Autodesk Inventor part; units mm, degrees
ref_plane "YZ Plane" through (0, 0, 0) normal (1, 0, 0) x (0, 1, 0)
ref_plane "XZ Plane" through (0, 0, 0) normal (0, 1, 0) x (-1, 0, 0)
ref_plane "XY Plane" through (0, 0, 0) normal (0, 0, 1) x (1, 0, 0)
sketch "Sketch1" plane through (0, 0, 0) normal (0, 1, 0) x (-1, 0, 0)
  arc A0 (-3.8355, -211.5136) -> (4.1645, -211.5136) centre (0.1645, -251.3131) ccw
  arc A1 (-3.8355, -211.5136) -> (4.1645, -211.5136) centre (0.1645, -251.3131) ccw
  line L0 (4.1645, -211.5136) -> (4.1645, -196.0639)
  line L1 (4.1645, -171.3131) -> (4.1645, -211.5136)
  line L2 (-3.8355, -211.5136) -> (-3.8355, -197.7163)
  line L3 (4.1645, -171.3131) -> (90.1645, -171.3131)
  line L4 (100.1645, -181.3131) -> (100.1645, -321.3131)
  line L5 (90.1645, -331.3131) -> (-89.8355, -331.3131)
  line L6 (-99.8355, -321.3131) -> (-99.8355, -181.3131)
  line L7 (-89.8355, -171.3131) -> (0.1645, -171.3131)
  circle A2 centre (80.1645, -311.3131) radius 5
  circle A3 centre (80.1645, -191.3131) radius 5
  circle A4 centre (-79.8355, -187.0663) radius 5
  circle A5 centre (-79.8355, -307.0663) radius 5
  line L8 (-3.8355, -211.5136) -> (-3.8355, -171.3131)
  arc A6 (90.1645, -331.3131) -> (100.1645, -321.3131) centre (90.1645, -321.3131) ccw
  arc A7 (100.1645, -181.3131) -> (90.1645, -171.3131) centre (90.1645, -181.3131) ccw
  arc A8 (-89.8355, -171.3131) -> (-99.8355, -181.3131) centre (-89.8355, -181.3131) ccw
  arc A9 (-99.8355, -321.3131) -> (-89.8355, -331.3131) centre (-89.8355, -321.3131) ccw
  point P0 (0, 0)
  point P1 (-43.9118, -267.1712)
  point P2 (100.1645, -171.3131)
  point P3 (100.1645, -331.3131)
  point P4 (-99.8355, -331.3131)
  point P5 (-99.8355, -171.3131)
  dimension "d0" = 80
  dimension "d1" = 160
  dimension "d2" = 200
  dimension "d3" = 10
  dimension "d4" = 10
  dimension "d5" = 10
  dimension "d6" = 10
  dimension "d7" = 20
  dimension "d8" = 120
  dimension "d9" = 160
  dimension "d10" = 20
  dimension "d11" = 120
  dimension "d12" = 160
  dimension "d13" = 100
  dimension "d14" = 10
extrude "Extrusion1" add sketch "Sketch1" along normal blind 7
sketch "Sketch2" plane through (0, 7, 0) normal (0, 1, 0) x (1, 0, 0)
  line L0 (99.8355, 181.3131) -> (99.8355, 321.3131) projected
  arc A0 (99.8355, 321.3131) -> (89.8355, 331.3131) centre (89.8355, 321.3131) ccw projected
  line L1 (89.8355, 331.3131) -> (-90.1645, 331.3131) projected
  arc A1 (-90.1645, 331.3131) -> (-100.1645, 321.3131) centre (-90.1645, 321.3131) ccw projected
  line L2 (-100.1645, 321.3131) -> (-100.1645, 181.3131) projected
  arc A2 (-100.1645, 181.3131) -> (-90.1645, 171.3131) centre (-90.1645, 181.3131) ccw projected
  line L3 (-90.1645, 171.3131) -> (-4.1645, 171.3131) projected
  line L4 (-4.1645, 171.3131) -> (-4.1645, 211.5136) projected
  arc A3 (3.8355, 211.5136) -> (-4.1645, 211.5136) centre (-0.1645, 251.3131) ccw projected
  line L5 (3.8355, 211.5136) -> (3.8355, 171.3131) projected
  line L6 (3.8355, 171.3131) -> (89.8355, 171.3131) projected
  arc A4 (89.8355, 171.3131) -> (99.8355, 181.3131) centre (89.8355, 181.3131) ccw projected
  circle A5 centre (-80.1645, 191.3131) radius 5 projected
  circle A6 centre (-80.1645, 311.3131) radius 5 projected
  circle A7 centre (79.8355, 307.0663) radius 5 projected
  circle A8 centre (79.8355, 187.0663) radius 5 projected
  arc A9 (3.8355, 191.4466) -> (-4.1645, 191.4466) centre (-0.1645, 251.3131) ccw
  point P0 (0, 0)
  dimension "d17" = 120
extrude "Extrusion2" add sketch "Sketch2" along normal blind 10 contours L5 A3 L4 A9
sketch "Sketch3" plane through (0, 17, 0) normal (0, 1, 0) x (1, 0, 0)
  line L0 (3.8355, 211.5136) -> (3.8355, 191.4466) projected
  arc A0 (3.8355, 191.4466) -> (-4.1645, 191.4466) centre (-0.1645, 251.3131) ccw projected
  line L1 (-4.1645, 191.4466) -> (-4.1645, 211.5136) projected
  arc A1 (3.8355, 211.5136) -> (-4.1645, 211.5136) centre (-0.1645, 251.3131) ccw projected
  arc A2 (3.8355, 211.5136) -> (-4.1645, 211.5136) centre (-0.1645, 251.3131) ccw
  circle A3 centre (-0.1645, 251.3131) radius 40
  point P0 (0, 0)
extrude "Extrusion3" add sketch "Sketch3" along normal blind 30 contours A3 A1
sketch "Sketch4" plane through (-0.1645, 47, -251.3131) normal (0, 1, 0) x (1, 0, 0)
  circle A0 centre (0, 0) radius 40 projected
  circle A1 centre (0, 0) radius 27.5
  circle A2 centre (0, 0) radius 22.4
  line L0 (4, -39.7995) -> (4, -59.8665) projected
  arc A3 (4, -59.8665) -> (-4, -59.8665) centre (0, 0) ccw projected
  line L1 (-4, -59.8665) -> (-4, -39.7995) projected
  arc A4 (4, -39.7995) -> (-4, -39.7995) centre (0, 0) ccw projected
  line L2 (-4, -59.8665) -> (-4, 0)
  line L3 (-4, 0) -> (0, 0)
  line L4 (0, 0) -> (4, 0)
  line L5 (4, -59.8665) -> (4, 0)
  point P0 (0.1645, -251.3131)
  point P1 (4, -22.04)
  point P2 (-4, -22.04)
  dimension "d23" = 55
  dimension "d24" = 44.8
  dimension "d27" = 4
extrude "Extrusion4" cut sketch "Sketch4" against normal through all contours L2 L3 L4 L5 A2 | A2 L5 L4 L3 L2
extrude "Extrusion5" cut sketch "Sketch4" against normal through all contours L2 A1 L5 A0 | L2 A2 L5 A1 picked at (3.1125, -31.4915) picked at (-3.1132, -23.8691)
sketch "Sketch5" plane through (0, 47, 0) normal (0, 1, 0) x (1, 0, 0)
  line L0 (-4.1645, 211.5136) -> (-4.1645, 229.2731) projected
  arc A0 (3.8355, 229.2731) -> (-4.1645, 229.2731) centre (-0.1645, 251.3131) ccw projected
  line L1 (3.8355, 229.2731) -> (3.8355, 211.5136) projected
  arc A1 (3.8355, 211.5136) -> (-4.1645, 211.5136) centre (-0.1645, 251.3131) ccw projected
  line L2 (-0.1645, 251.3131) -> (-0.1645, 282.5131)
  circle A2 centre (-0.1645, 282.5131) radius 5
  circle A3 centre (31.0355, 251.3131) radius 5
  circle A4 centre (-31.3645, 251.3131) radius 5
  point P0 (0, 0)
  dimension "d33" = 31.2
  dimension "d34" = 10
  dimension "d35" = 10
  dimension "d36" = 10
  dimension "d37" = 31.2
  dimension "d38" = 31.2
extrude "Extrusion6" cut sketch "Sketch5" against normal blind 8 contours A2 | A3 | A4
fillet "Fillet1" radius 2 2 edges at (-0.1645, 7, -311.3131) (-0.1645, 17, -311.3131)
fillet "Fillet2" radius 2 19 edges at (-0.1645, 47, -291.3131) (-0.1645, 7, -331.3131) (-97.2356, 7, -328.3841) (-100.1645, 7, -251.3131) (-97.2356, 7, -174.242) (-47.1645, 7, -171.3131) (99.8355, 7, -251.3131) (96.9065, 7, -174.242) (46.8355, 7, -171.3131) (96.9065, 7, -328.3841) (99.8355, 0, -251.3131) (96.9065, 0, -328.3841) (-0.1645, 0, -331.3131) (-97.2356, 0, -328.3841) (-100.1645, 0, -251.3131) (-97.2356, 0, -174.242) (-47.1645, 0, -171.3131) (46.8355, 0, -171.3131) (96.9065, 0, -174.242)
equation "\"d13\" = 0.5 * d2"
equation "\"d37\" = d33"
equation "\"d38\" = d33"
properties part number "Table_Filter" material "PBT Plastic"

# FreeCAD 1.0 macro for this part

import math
import FreeCAD as App
import Part
import Sketcher
from FreeCAD import Vector
Q = App.Units.Quantity


def edges_at(feature, points):
    """Names of the edges that pass closest to the given points."""
    edges = feature.Shape.Edges
    near = lambda p: min(range(len(edges)), key=lambda i: edges[i].distToShape(Part.Vertex(*p))[0])
    return sorted({f"Edge{near(p) + 1}" for p in points})

doc = App.newDocument("Part")
body = doc.addObject("PartDesign::Body", "Body")
body.AllowCompound = True

sketch1 = doc.addObject("Sketcher::SketchObject", "Sketch")
body.addObject(sketch1)
sketch1.AttachmentSupport = (doc.XZ_Plane, [""])
sketch1.MapMode = "FlatFace"
sketch1.addGeometry([
    Part.ArcOfCircle(Part.Circle(Vector(0, -251, 0), Vector(0, 0, 1), 40), math.radians(96), math.radians(444)),
    Part.LineSegment(Vector(4, -212, 0), Vector(4, -171, 0)),
    Part.LineSegment(Vector(4, -171, 0), Vector(90, -171, 0)),
    Part.ArcOfCircle(Part.Circle(Vector(90, -181, 0), Vector(0, 0, 1), 10), math.radians(0), math.radians(90)),
    Part.LineSegment(Vector(100, -181, 0), Vector(100, -321, 0)),
    Part.ArcOfCircle(Part.Circle(Vector(90, -321, 0), Vector(0, 0, 1), 10), math.radians(-90), math.radians(0)),
    Part.LineSegment(Vector(90, -331, 0), Vector(-90, -331, 0)),
    Part.ArcOfCircle(Part.Circle(Vector(-90, -321, 0), Vector(0, 0, 1), 10), math.radians(180), math.radians(270)),
    Part.LineSegment(Vector(-100, -321, 0), Vector(-100, -181, 0)),
    Part.ArcOfCircle(Part.Circle(Vector(-90, -181, 0), Vector(0, 0, 1), 10), math.radians(90), math.radians(180)),
    Part.LineSegment(Vector(-90, -171, 0), Vector(-4, -171, 0)),
    Part.LineSegment(Vector(-4, -171, 0), Vector(-4, -212, 0)),
    Part.Circle(Vector(80, -307, 0), Vector(0, 0, 1), 5),
    Part.Circle(Vector(-80, -311, 0), Vector(0, 0, 1), 5),
    Part.Circle(Vector(80, -187, 0), Vector(0, 0, 1), 5),
    Part.Circle(Vector(-80, -191, 0), Vector(0, 0, 1), 5),
], False)
sketch1.addConstraint([
    Sketcher.Constraint("Coincident", 0, 2, 1, 1),
    Sketcher.Constraint("Coincident", 1, 2, 2, 1),
    Sketcher.Constraint("Tangent", 2, 2, 3, 2),
    Sketcher.Constraint("Tangent", 3, 1, 4, 1),
    Sketcher.Constraint("Tangent", 4, 2, 5, 2),
    Sketcher.Constraint("Tangent", 5, 1, 6, 1),
    Sketcher.Constraint("Tangent", 6, 2, 7, 2),
    Sketcher.Constraint("Tangent", 7, 1, 8, 1),
    Sketcher.Constraint("Tangent", 8, 2, 9, 2),
    Sketcher.Constraint("Tangent", 9, 1, 10, 1),
    Sketcher.Constraint("Coincident", 10, 2, 11, 1),
    Sketcher.Constraint("Coincident", 11, 2, 0, 1),
    Sketcher.Constraint("Vertical", 1),
    Sketcher.Constraint("Horizontal", 2),
    Sketcher.Constraint("Vertical", 4),
    Sketcher.Constraint("Horizontal", 6),
    Sketcher.Constraint("Vertical", 8),
    Sketcher.Constraint("Horizontal", 10),
    Sketcher.Constraint("Vertical", 11),
    Sketcher.Constraint("Equal", 3, 5),
    Sketcher.Constraint("Equal", 5, 7),
    Sketcher.Constraint("Equal", 7, 9),
    Sketcher.Constraint("Equal", 12, 13),
    Sketcher.Constraint("Equal", 13, 14),
    Sketcher.Constraint("Equal", 14, 15),
    Sketcher.Constraint("Horizontal", 3, 3, 9, 3),
    Sketcher.Constraint("Horizontal", 0, 2, 11, 2),
    Sketcher.Constraint("Vertical", 12, 3, 14, 3),
    Sketcher.Constraint("Vertical", 13, 3, 15, 3),
    Sketcher.Constraint("Equal", 2, 10),
    Sketcher.Constraint("Diameter", 12, Q("10 mm")),
    Sketcher.Constraint("Radius", 0, Q("40 mm")),
    Sketcher.Constraint("Radius", 3, Q("10 mm")),
    Sketcher.Constraint("DistanceX", 12, 3, 5, 3, Q("10 mm")),
    Sketcher.Constraint("DistanceX", 0, 3, 12, 3, Q("80 mm")),
    Sketcher.Constraint("DistanceX", 7, 3, 13, 3, Q("10 mm")),
    Sketcher.Constraint("DistanceY", 7, 3, 13, 3, Q("10 mm")),
    Sketcher.Constraint("DistanceY", 12, 3, 14, 3, Q("120 mm")),
    Sketcher.Constraint("DistanceY", 15, 3, 9, 3, Q("10 mm")),
    Sketcher.Constraint("DistanceY", 13, 3, 15, 3, Q("120 mm")),
    Sketcher.Constraint("DistanceY", 0, 3, 1, 2, Q("80 mm")),
    Sketcher.Constraint("DistanceX", 2, 1, 2, 2, Q("86 mm")),
    Sketcher.Constraint("DistanceY", 0, 3, -1, 1, Q("251.313 mm")),
    Sketcher.Constraint("DistanceX", 0, 3, -1, 1, Q("0.1645 mm")),
    Sketcher.Constraint("DistanceY", 12, 3, -1, 1, Q("307.0663 mm")),
])
pad1 = doc.addObject("PartDesign::Pad", "Pad")
body.addObject(pad1)
pad1.Profile = sketch1
pad1.Length = 7
pad1.Reversed = True

sketch2 = doc.addObject("Sketcher::SketchObject", "Sketch001")
body.addObject(sketch2)
sketch2.AttachmentSupport = (doc.XZ_Plane, [""])
sketch2.MapMode = "FlatFace"
sketch2.AttachmentOffset = App.Placement(Vector(0, 0, -7), App.Rotation())
sketch2.addGeometry([
    Part.LineSegment(Vector(4, -212, 0), Vector(4, -191, 0)),
    Part.ArcOfCircle(Part.Circle(Vector(0, -251, 0), Vector(0, 0, 1), 60), math.radians(94), math.radians(446)),
    Part.LineSegment(Vector(-4, -191, 0), Vector(-4, -212, 0)),
    Part.ArcOfCircle(Part.Circle(Vector(0, -251, 0), Vector(0, 0, 1), 40), math.radians(96), math.radians(444)),
], False)
sketch2.addConstraint([
    Sketcher.Constraint("Coincident", 0, 2, 1, 2),
    Sketcher.Constraint("Coincident", 1, 1, 2, 1),
    Sketcher.Constraint("Coincident", 2, 2, 3, 1),
    Sketcher.Constraint("Coincident", 3, 2, 0, 1),
    Sketcher.Constraint("Vertical", 0),
    Sketcher.Constraint("Vertical", 2),
    Sketcher.Constraint("Coincident", 3, 3, 1, 3),
    Sketcher.Constraint("Horizontal", 0, 2, 1, 1),
    Sketcher.Constraint("Radius", 1, Q("60 mm")),
    Sketcher.Constraint("Radius", 3, Q("40 mm")),
    Sketcher.Constraint("DistanceX", 1, 3, 0, 2, Q("4 mm")),
    Sketcher.Constraint("DistanceY", 1, 3, -1, 1, Q("251.313 mm")),
    Sketcher.Constraint("DistanceX", 1, 3, -1, 1, Q("0.1645 mm")),
])
pad2 = doc.addObject("PartDesign::Pad", "Pad001")
body.addObject(pad2)
pad2.Profile = sketch2
pad2.Length = 10
pad2.Reversed = True

sketch3 = doc.addObject("Sketcher::SketchObject", "Sketch002")
body.addObject(sketch3)
sketch3.AttachmentSupport = (doc.XZ_Plane, [""])
sketch3.MapMode = "FlatFace"
sketch3.AttachmentOffset = App.Placement(Vector(0, 0, -17), App.Rotation())
sketch3.addGeometry(Part.Circle(Vector(0, -251, 0), Vector(0, 0, 1), 40), False)
sketch3.addConstraint([
    Sketcher.Constraint("Diameter", 0, Q("80 mm")),
    Sketcher.Constraint("DistanceY", 0, 3, -1, 1, Q("251.313 mm")),
    Sketcher.Constraint("DistanceX", 0, 3, -1, 1, Q("0.1645 mm")),
])
pad3 = doc.addObject("PartDesign::Pad", "Pad002")
body.addObject(pad3)
pad3.Profile = sketch3
pad3.Length = 30
pad3.Reversed = True

sketch4 = doc.addObject("Sketcher::SketchObject", "Sketch003")
body.addObject(sketch4)
sketch4.AttachmentSupport = (doc.XZ_Plane, [""])
sketch4.MapMode = "FlatFace"
sketch4.AttachmentOffset = App.Placement(Vector(0, 0, -47), App.Rotation())
sketch4.addGeometry(Part.Circle(Vector(0, -251, 0), Vector(0, 0, 1), 22), False)
sketch4.addConstraint([
    Sketcher.Constraint("Diameter", 0, Q("44.8 mm")),
    Sketcher.Constraint("DistanceY", 0, 3, -1, 1, Q("251.313 mm")),
    Sketcher.Constraint("DistanceX", 0, 3, -1, 1, Q("0.1645 mm")),
])
pocket1 = doc.addObject("PartDesign::Pocket", "Pocket")
body.addObject(pocket1)
pocket1.Profile = sketch4
pocket1.Type = "ThroughAll"
pocket1.Reversed = True

sketch5 = doc.addObject("Sketcher::SketchObject", "Sketch004")
body.addObject(sketch5)
sketch5.AttachmentSupport = (doc.XZ_Plane, [""])
sketch5.MapMode = "FlatFace"
sketch5.AttachmentOffset = App.Placement(Vector(0, 0, -47), App.Rotation())
sketch5.addGeometry([
    Part.ArcOfCircle(Part.Circle(Vector(0, -251, 0), Vector(0, 0, 1), 40), math.radians(84.26), math.radians(95.74)),
    Part.LineSegment(Vector(4, -212, 0), Vector(4, -229, 0)),
    Part.ArcOfCircle(Part.Circle(Vector(0, -251, 0), Vector(0, 0, 1), 22), math.radians(80), math.radians(100)),
    Part.LineSegment(Vector(-4, -229, 0), Vector(-4, -212, 0)),
], False)
sketch5.addConstraint([
    Sketcher.Constraint("Coincident", 0, 1, 1, 1),
    Sketcher.Constraint("Coincident", 1, 2, 2, 1),
    Sketcher.Constraint("Coincident", 2, 2, 3, 1),
    Sketcher.Constraint("Coincident", 3, 2, 0, 2),
    Sketcher.Constraint("Vertical", 1),
    Sketcher.Constraint("Vertical", 3),
    Sketcher.Constraint("Coincident", 2, 3, 0, 3),
    Sketcher.Constraint("Horizontal", 1, 2, 2, 2),
    Sketcher.Constraint("Radius", 2, Q("22.4 mm")),
    Sketcher.Constraint("Radius", 0, Q("40 mm")),
    Sketcher.Constraint("DistanceX", 0, 3, 0, 1, Q("4 mm")),
    Sketcher.Constraint("DistanceY", 0, 3, -1, 1, Q("251.313 mm")),
    Sketcher.Constraint("DistanceX", 0, 3, -1, 1, Q("0.1645 mm")),
])
pocket2 = doc.addObject("PartDesign::Pocket", "Pocket001")
body.addObject(pocket2)
pocket2.Profile = sketch5
pocket2.Type = "ThroughAll"
pocket2.Reversed = True

sketch6 = doc.addObject("Sketcher::SketchObject", "Sketch005")
body.addObject(sketch6)
sketch6.AttachmentSupport = (doc.XZ_Plane, [""])
sketch6.MapMode = "FlatFace"
sketch6.AttachmentOffset = App.Placement(Vector(0, 0, -47), App.Rotation())
sketch6.addGeometry([
    Part.Circle(Vector(0, -283, 0), Vector(0, 0, 1), 5),
    Part.Circle(Vector(31, -251, 0), Vector(0, 0, 1), 5),
    Part.Circle(Vector(-31, -251, 0), Vector(0, 0, 1), 5),
], False)
sketch6.addConstraint([
    Sketcher.Constraint("Equal", 0, 1),
    Sketcher.Constraint("Equal", 1, 2),
    Sketcher.Constraint("Horizontal", 1, 3, 2, 3),
    Sketcher.Constraint("Diameter", 0, Q("10 mm")),
    Sketcher.Constraint("DistanceX", 0, 3, 1, 3, Q("31.2 mm")),
    Sketcher.Constraint("DistanceY", 0, 3, 1, 3, Q("31.2 mm")),
    Sketcher.Constraint("DistanceX", 2, 3, 0, 3, Q("31.2 mm")),
    Sketcher.Constraint("DistanceY", 0, 3, -1, 1, Q("282.513 mm")),
    Sketcher.Constraint("DistanceX", 0, 3, -1, 1, Q("0.1645 mm")),
])
pocket3 = doc.addObject("PartDesign::Pocket", "Pocket002")
body.addObject(pocket3)
pocket3.Profile = sketch6
pocket3.Length = 8
pocket3.Reversed = True
doc.recompute()

fillet = doc.addObject("PartDesign::Fillet", "Fillet")
body.addObject(fillet)
fillet.Base = (pocket3, edges_at(pocket3, [(-0.165, 7, -311.313), (-0.165, 17, -311.313)]))
fillet.Radius = 2
doc.recompute()

fillet2 = doc.addObject("PartDesign::Fillet", "Fillet001")
body.addObject(fillet2)
fillet2.Base = (fillet, edges_at(fillet, [
    (-0.165, 47, -291.313),
    (-0.165, 7, -331.313),
    (-97.236, 7, -328.384),
    (-100.165, 7, -251.313),
    (-97.236, 7, -174.242),
    (-47.164, 7, -171.313),
    (99.835, 7, -251.313),
    (96.906, 7, -174.242),
    (46.836, 7, -171.313),
    (96.906, 7, -328.384),
    (99.835, 0, -251.313),
    (96.906, 0, -328.384),
    (-0.165, 0, -331.313),
    (-97.236, 0, -328.384),
    (-100.165, 0, -251.313),
    (-97.236, 0, -174.242),
    (-47.164, 0, -171.313),
    (46.836, 0, -171.313),
    (96.906, 0, -174.242),
]))
fillet2.Radius = 2

doc.recompute()
